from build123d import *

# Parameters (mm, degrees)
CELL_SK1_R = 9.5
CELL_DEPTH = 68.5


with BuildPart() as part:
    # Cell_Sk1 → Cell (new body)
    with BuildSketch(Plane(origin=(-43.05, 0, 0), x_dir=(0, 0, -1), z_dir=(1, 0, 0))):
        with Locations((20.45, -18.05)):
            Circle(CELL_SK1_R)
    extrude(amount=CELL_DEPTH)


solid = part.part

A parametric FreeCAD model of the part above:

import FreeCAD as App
import Part
import Sketcher
from FreeCAD import Vector

doc = App.newDocument("Part")
params = doc.addObject("Spreadsheet::Sheet", "Params")
for row, (alias, value) in enumerate([
    ("sketch1_diameter", "19 mm"),
    ("pad1_length", "68.5 mm"),
], start=1):
    params.set(f"A{row}", alias)
    params.set(f"B{row}", "=" + value)
    params.setAlias(f"B{row}", alias)

body = doc.addObject("PartDesign::Body", "Body")

sketch1 = body.newObject("Sketcher::SketchObject", "Sketch")
sketch1.AttachmentSupport = (doc.getObject("YZ_Plane"), [""])
sketch1.MapMode = "FlatFace"
sketch1.AttachmentOffset = App.Placement(Vector(0, 0, -43.05), App.Rotation())
sketch1.addGeometry(Part.Circle(Vector(-18, -20, 0), Vector(0, 0, 1), 10), False)
sketch1.addConstraint(Sketcher.Constraint("Diameter", 0, 19.0))
sketch1.addConstraint(Sketcher.Constraint("DistanceX", 0, 3, -1, 1, 18.05))
sketch1.addConstraint(Sketcher.Constraint("DistanceY", 0, 3, -1, 1, 20.45))
sketch1.setExpression("Constraints[0]", "Params.sketch1_diameter")
pad1 = body.newObject("PartDesign::Pad", "Pad")
pad1.Profile = sketch1
pad1.setExpression("Length", "Params.pad1_length")

doc.recompute()
